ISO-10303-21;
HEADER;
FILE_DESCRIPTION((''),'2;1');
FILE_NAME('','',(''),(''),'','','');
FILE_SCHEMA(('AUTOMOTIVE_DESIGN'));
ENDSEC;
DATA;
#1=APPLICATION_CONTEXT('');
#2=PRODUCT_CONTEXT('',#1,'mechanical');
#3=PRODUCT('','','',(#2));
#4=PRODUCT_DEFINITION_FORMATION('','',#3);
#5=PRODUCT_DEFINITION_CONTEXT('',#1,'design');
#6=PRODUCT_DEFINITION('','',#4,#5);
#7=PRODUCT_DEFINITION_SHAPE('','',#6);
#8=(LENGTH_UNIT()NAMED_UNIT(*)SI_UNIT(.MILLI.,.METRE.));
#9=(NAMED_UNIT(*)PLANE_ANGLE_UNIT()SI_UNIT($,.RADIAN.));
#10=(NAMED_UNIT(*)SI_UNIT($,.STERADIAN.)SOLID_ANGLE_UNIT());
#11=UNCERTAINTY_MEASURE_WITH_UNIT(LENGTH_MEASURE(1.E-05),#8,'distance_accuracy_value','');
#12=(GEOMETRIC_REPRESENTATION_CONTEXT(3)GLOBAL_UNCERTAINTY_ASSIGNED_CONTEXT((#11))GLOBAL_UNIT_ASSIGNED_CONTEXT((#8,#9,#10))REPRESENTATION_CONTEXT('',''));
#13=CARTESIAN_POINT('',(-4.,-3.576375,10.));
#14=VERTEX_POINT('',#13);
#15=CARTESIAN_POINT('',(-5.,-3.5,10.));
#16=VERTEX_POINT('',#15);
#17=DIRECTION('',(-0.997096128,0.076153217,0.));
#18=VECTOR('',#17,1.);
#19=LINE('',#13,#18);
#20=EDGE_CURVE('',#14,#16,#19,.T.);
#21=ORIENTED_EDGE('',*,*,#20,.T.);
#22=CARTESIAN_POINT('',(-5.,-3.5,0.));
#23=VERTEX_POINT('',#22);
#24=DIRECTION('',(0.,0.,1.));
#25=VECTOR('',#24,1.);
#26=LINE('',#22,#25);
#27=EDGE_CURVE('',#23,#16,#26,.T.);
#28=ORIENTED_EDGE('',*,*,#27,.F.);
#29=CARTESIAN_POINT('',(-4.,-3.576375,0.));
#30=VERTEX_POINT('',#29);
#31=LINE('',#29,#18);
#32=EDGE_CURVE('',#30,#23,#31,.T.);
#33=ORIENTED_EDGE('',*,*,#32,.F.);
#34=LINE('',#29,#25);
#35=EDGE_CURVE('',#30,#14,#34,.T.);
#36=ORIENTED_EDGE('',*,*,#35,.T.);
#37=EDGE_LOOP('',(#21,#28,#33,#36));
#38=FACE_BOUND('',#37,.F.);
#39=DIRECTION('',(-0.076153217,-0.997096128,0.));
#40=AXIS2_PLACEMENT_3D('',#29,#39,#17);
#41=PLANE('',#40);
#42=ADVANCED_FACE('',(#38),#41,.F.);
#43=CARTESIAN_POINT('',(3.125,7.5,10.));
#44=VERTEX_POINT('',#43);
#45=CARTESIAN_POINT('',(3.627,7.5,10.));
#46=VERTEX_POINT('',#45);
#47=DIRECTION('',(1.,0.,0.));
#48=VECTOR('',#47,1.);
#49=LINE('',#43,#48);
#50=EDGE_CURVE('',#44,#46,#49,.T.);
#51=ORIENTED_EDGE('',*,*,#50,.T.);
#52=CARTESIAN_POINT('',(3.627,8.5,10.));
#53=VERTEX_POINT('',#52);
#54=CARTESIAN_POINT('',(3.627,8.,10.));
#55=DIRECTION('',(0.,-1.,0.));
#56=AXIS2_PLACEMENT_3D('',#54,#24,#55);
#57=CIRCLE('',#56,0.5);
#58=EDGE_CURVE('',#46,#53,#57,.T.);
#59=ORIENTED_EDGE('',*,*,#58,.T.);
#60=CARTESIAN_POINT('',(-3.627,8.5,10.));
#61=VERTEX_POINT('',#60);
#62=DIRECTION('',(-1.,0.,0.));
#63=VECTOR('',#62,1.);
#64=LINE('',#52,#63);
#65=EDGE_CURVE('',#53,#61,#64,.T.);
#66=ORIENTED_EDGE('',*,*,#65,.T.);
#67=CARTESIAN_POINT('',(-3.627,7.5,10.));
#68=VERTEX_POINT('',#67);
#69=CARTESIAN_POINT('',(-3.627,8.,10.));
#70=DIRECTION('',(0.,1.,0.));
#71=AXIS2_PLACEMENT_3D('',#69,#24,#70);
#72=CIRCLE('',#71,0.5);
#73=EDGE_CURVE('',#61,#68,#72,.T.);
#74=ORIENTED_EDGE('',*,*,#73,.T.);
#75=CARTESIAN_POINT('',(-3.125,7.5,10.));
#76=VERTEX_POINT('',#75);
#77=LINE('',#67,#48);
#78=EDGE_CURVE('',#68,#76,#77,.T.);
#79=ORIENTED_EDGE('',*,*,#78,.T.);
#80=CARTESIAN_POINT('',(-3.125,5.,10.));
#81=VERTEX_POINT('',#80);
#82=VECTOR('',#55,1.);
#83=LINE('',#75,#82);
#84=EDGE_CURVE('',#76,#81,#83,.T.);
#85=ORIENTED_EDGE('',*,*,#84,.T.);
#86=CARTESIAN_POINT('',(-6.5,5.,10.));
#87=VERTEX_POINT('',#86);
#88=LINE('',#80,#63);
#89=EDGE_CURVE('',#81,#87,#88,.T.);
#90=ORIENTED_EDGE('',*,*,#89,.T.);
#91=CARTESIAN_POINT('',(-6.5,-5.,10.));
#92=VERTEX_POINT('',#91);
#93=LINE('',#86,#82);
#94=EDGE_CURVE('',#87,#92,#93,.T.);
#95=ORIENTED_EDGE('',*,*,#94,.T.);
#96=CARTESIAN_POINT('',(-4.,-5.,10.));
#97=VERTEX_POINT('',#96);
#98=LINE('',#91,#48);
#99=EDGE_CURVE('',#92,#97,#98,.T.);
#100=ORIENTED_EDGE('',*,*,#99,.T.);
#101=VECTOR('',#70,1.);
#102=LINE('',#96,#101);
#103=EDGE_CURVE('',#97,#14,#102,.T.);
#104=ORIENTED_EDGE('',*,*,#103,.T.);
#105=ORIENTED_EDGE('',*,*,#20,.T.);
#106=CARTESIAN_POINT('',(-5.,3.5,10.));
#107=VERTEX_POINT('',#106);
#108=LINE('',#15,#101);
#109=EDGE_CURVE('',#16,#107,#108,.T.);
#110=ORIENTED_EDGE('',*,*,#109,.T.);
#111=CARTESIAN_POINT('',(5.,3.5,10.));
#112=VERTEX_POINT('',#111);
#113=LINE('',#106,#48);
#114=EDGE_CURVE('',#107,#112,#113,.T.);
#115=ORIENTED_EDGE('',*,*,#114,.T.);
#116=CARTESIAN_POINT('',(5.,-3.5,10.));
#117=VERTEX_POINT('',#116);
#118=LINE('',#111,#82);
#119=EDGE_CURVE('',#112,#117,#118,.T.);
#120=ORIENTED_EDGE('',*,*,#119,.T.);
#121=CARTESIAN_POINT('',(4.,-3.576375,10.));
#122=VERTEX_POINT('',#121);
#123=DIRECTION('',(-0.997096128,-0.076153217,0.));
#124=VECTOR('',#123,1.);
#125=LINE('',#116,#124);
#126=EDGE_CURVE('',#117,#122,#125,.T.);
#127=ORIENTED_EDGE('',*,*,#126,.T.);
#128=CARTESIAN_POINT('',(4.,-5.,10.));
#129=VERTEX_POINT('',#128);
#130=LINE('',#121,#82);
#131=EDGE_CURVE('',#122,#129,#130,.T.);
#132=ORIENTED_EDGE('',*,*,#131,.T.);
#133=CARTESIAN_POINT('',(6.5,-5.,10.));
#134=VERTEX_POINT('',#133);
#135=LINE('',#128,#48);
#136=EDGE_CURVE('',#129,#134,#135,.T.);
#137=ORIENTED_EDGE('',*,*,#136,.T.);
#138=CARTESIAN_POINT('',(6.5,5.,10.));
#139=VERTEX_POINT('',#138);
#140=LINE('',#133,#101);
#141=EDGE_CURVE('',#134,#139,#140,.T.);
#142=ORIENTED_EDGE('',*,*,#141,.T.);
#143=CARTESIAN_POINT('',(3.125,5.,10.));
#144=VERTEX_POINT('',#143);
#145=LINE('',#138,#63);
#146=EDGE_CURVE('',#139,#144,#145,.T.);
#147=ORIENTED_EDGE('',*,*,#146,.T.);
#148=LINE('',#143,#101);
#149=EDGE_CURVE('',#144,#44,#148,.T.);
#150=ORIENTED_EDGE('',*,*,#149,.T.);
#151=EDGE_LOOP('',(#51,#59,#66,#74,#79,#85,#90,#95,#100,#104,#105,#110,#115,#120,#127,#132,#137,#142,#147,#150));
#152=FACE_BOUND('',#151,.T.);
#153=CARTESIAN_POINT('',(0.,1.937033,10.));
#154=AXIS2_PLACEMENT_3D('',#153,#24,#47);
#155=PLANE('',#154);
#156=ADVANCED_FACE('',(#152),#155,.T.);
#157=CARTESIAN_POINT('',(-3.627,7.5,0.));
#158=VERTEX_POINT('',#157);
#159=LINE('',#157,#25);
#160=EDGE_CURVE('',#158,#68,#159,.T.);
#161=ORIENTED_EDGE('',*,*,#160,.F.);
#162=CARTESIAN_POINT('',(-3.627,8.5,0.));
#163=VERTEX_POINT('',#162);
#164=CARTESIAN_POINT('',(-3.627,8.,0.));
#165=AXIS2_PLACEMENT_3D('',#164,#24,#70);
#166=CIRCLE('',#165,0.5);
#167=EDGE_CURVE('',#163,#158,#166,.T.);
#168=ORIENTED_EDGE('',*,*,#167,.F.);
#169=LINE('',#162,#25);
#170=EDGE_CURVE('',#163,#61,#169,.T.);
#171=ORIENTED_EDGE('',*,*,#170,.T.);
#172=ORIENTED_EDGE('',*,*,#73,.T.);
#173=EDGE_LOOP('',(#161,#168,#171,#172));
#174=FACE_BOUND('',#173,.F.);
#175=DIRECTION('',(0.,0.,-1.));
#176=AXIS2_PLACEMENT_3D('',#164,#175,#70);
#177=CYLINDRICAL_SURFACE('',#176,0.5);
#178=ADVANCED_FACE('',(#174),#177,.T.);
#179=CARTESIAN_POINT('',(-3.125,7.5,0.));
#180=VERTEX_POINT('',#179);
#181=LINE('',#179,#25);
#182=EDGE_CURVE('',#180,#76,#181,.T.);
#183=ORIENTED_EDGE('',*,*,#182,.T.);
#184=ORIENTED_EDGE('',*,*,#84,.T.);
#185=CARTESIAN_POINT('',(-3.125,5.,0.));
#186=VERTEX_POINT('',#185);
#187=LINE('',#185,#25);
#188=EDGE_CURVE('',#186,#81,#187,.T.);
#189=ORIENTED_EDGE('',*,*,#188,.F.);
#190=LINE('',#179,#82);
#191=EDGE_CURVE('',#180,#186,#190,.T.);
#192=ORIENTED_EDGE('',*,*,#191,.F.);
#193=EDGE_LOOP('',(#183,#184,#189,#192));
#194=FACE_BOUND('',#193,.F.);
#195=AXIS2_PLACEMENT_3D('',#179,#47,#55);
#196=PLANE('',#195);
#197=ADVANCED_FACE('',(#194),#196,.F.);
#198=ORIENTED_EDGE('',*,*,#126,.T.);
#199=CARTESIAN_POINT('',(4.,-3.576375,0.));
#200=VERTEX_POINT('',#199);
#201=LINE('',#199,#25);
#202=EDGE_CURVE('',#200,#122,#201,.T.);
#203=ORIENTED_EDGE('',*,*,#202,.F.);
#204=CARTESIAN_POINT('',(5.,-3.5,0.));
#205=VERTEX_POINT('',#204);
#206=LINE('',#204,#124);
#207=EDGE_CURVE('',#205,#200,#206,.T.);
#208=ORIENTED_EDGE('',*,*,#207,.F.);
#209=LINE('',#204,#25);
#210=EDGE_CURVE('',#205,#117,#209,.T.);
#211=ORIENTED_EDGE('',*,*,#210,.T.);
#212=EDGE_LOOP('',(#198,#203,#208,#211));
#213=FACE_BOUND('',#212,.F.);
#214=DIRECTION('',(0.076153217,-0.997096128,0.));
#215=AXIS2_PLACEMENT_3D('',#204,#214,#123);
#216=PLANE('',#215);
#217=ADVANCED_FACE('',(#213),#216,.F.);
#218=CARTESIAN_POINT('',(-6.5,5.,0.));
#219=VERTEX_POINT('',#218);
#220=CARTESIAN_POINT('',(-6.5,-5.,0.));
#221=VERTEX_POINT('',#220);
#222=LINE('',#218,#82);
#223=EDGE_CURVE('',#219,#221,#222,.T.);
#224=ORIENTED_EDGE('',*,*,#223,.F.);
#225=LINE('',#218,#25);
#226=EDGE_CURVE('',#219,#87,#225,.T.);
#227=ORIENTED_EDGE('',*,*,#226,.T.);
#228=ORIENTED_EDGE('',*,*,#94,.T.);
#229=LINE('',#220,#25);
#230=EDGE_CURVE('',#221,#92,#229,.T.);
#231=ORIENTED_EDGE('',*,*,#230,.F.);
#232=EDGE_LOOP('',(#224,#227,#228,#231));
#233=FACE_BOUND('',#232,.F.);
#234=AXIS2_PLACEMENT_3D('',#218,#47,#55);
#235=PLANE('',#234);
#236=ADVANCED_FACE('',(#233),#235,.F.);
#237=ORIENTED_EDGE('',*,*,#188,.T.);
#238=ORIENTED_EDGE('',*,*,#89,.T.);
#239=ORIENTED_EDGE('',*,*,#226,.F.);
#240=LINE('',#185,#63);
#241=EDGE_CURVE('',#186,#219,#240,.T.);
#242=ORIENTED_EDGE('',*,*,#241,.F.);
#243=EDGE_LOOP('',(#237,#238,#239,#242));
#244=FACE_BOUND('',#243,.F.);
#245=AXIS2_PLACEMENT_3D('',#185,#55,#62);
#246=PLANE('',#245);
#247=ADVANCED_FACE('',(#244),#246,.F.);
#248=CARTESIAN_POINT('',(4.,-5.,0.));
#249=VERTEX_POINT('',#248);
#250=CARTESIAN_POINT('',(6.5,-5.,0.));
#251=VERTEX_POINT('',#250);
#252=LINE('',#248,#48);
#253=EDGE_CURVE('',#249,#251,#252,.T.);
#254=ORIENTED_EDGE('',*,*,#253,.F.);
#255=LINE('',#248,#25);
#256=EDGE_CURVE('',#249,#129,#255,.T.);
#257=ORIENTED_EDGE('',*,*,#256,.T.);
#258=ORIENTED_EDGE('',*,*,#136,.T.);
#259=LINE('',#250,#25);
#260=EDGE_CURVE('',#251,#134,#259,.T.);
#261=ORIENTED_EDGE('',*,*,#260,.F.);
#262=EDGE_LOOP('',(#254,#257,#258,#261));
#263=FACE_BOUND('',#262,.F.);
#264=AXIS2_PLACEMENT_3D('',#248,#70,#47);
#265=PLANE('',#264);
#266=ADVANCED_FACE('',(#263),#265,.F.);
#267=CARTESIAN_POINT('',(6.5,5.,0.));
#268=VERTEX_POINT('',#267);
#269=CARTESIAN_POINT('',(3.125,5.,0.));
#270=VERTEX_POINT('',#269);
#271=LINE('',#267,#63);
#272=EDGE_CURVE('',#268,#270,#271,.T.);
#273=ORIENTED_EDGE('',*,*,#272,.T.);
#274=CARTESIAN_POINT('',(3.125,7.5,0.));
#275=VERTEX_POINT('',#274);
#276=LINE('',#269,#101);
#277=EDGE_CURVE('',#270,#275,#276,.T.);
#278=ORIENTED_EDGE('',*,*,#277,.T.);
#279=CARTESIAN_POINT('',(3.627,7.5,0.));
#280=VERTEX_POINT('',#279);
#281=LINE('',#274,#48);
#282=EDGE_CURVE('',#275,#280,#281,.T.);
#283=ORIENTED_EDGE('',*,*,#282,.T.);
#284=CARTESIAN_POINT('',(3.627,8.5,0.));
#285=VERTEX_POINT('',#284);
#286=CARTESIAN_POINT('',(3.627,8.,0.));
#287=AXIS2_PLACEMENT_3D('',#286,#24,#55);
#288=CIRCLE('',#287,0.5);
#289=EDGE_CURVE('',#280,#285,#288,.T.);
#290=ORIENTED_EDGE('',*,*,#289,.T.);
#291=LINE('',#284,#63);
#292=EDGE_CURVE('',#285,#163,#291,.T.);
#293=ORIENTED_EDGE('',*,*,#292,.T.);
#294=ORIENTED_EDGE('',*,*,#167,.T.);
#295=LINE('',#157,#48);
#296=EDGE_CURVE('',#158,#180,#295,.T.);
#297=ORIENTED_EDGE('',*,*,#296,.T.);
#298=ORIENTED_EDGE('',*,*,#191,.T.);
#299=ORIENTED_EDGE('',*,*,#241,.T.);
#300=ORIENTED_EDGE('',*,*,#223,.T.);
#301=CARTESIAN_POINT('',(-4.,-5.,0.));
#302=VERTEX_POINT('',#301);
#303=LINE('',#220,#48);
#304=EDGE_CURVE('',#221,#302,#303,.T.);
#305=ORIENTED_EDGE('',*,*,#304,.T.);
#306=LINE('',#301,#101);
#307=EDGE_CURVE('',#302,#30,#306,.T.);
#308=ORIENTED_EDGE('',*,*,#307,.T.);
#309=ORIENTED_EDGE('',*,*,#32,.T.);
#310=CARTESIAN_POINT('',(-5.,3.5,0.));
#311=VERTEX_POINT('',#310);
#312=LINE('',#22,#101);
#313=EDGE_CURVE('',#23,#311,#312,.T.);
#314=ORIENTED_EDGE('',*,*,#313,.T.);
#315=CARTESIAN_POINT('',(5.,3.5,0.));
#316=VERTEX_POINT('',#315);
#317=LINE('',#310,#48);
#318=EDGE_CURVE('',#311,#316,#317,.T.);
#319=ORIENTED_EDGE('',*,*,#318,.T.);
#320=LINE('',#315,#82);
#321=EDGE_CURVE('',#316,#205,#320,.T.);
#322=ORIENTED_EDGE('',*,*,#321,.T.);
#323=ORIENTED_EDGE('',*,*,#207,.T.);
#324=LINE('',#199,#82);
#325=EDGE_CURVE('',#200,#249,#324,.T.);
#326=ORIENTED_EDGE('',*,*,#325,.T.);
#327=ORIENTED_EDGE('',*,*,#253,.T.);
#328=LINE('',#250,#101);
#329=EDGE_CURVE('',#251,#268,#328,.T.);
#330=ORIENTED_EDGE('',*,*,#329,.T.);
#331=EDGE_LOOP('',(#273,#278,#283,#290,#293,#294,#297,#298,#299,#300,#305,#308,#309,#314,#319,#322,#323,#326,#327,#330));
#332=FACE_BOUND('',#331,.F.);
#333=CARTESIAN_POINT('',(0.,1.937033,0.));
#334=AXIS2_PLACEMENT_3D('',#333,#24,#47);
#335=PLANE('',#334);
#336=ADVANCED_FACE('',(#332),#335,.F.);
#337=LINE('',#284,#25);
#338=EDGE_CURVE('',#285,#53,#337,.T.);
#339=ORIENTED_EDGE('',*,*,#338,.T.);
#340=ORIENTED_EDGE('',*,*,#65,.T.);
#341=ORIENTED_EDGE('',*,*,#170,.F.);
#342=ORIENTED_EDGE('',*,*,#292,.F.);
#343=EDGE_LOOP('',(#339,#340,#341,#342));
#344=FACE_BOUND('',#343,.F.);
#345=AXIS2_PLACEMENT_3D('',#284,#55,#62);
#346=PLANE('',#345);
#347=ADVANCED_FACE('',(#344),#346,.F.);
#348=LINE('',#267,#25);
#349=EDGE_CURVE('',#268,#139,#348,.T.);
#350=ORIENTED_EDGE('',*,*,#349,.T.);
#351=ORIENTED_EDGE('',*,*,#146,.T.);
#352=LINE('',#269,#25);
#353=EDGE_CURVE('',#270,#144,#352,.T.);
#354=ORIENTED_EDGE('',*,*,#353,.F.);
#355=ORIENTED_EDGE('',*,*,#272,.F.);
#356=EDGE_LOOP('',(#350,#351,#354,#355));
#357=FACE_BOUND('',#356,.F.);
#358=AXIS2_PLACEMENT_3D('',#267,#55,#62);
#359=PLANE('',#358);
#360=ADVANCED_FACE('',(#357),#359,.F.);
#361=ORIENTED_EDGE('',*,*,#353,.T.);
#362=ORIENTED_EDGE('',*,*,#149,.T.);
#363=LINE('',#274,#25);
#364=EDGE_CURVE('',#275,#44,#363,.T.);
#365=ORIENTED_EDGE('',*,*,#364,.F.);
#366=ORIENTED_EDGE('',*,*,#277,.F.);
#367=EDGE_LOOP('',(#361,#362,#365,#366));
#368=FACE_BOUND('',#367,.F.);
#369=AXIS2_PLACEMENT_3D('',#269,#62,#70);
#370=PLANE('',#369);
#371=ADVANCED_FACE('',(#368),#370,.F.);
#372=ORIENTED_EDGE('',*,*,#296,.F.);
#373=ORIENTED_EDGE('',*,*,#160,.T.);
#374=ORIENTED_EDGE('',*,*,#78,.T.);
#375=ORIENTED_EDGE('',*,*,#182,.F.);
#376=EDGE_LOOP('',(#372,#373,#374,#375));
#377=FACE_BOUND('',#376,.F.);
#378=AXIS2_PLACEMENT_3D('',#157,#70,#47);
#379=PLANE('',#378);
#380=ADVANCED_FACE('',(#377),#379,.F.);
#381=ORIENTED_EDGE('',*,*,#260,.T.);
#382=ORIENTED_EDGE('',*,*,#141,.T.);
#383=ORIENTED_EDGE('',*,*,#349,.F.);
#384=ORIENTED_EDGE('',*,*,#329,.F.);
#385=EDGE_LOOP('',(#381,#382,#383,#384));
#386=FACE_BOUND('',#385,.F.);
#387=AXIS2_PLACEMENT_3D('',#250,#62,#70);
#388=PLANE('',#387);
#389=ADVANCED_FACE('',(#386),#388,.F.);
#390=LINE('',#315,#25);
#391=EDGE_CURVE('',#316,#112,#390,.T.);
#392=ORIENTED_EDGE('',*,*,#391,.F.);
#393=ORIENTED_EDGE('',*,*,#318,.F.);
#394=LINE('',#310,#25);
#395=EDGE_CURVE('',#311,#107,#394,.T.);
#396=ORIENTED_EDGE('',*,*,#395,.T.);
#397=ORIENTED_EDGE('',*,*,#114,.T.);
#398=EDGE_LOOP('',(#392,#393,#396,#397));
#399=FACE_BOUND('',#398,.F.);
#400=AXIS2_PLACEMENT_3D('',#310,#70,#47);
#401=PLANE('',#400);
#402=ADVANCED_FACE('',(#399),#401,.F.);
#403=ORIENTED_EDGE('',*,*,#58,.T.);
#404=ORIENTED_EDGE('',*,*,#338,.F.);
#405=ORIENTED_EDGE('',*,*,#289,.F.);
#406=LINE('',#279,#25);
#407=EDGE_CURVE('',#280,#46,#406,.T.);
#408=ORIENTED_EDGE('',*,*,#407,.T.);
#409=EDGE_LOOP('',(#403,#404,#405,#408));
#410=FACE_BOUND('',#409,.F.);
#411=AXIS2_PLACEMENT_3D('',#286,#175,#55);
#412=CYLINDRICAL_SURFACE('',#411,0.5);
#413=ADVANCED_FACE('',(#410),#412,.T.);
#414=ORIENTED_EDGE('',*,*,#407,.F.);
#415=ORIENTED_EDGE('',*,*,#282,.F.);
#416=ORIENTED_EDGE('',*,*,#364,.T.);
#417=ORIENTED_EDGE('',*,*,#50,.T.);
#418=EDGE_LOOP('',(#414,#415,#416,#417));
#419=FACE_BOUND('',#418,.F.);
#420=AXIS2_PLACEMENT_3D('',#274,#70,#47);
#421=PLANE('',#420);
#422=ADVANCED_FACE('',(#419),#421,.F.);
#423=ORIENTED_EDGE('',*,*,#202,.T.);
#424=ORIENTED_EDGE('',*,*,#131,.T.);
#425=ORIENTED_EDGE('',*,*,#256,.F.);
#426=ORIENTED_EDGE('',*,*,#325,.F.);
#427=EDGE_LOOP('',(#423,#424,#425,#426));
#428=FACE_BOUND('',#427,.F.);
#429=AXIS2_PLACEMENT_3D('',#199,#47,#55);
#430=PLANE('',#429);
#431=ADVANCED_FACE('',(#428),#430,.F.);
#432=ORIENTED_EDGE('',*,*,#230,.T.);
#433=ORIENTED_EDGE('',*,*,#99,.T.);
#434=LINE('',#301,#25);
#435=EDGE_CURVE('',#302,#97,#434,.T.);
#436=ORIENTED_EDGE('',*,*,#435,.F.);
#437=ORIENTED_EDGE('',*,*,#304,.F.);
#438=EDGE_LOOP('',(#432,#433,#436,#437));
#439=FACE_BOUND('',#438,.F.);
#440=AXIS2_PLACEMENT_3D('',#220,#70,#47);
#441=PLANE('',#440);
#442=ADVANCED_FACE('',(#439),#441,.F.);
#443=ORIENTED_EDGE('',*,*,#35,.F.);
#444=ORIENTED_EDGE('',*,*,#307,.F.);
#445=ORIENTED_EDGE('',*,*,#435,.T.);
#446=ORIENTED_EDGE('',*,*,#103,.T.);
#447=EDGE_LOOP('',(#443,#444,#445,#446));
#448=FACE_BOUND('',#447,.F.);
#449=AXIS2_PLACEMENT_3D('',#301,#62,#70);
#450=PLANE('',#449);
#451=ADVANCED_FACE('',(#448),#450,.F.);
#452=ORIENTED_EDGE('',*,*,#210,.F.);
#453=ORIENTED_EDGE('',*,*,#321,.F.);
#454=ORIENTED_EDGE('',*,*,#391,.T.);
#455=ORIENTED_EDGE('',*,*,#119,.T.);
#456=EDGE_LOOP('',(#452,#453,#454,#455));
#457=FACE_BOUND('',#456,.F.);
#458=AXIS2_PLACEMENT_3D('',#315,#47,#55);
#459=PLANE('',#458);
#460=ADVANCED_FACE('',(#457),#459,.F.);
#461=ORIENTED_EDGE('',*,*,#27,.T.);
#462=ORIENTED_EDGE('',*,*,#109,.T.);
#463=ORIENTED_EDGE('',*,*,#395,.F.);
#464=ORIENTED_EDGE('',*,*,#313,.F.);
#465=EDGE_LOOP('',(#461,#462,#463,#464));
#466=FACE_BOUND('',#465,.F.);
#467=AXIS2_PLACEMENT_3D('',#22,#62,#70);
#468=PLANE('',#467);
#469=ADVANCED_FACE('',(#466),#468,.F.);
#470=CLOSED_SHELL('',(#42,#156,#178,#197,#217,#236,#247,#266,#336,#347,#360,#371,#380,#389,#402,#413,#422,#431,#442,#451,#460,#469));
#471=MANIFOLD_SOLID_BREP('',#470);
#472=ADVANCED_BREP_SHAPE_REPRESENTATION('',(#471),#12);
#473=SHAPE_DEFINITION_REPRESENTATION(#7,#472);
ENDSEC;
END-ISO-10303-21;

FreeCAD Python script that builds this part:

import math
import FreeCAD as App
import Part
import Sketcher

V = App.Vector

doc = App.newDocument("Part")
body = doc.addObject("PartDesign::Body", "Body")

sketch1 = body.newObject("Sketcher::SketchObject", "Sketch")
sketch1.AttachmentSupport = (doc.getObject("XY_Plane"), [""])
sketch1.MapMode = "FlatFace"
sketch1.addGeometry([
    Part.LineSegment(V(-6.5, -5, 0), V(-4, -5, 0)),
    Part.LineSegment(V(-4, -5, 0), V(-4, -3.6, 0)),
    Part.LineSegment(V(-4, -3.6, 0), V(-5, -3.5, 0)),
    Part.LineSegment(V(-5, -3.5, 0), V(-5, 3.5, 0)),
    Part.LineSegment(V(-5, 3.5, 0), V(5, 3.5, 0)),
    Part.LineSegment(V(5, 3.5, 0), V(5, -3.5, 0)),
    Part.LineSegment(V(5, -3.5, 0), V(4, -3.6, 0)),
    Part.LineSegment(V(4, -3.6, 0), V(4, -5, 0)),
    Part.LineSegment(V(4, -5, 0), V(6.5, -5, 0)),
    Part.LineSegment(V(6.5, -5, 0), V(6.5, 5, 0)),
    Part.LineSegment(V(6.5, 5, 0), V(3.1, 5, 0)),
    Part.LineSegment(V(3.1, 5, 0), V(3.1, 7.5, 0)),
    Part.LineSegment(V(3.1, 7.5, 0), V(3.6, 7.5, 0)),
    Part.ArcOfCircle(Part.Circle(V(3.6, 8, 0), V(0, 0, 1), 0.5), math.radians(-90), math.radians(90)),
    Part.LineSegment(V(3.6, 8.5, 0), V(-3.6, 8.5, 0)),
    Part.ArcOfCircle(Part.Circle(V(-3.6, 8, 0), V(0, 0, 1), 0.5), math.radians(90), math.radians(270)),
    Part.LineSegment(V(-3.6, 7.5, 0), V(-3.1, 7.5, 0)),
    Part.LineSegment(V(-3.1, 7.5, 0), V(-3.1, 5, 0)),
    Part.LineSegment(V(-3.1, 5, 0), V(-6.5, 5, 0)),
    Part.LineSegment(V(-6.5, 5, 0), V(-6.5, -5, 0)),
], False)
sketch1.addConstraint([
    Sketcher.Constraint("Coincident", 0, 2, 1, 1),
    Sketcher.Constraint("Coincident", 1, 2, 2, 1),
    Sketcher.Constraint("Coincident", 2, 2, 3, 1),
    Sketcher.Constraint("Coincident", 3, 2, 4, 1),
    Sketcher.Constraint("Coincident", 4, 2, 5, 1),
    Sketcher.Constraint("Coincident", 5, 2, 6, 1),
    Sketcher.Constraint("Coincident", 6, 2, 7, 1),
    Sketcher.Constraint("Coincident", 7, 2, 8, 1),
    Sketcher.Constraint("Coincident", 8, 2, 9, 1),
    Sketcher.Constraint("Coincident", 9, 2, 10, 1),
    Sketcher.Constraint("Coincident", 10, 2, 11, 1),
    Sketcher.Constraint("Coincident", 11, 2, 12, 1),
    Sketcher.Constraint("Tangent", 12, 2, 13, 1),
    Sketcher.Constraint("Tangent", 13, 2, 14, 1),
    Sketcher.Constraint("Tangent", 14, 2, 15, 1),
    Sketcher.Constraint("Tangent", 15, 2, 16, 1),
    Sketcher.Constraint("Coincident", 16, 2, 17, 1),
    Sketcher.Constraint("Coincident", 17, 2, 18, 1),
    Sketcher.Constraint("Coincident", 18, 2, 19, 1),
    Sketcher.Constraint("Coincident", 19, 2, 0, 1),
    Sketcher.Constraint("Horizontal", 0),
    Sketcher.Constraint("Vertical", 1),
    Sketcher.Constraint("Vertical", 3),
    Sketcher.Constraint("Horizontal", 4),
    Sketcher.Constraint("Vertical", 5),
    Sketcher.Constraint("Vertical", 7),
    Sketcher.Constraint("Horizontal", 8),
    Sketcher.Constraint("Vertical", 9),
    Sketcher.Constraint("Horizontal", 10),
    Sketcher.Constraint("Vertical", 11),
    Sketcher.Constraint("Horizontal", 12),
    Sketcher.Constraint("Horizontal", 14),
    Sketcher.Constraint("Horizontal", 16),
    Sketcher.Constraint("Vertical", 17),
    Sketcher.Constraint("Horizontal", 18),
    Sketcher.Constraint("Vertical", 19),
    Sketcher.Constraint("Equal", 13, 15),
    Sketcher.Constraint("Symmetric", 2, 2, 4, 2, -1, 1),
    Sketcher.Constraint("Symmetric", 8, 2, 18, 2, -1, 1),
    Sketcher.Constraint("Symmetric", 1, 2, 6, 2, -2),
    Sketcher.Constraint("Symmetric", 10, 2, 17, 2, -2),
    Sketcher.Constraint("Horizontal", 2, 2, 5, 2),
    Sketcher.Constraint("Horizontal", 0, 2, 7, 2),
    Sketcher.Constraint("Equal", 12, 16),
    Sketcher.Constraint("Equal", 4, 9),
    Sketcher.Constraint("Equal", 8, 11),
    Sketcher.Constraint("Radius", 13, 0.5),
    Sketcher.Constraint("DistanceX", 4, 1, 4, 2, 10.0),
    Sketcher.Constraint("DistanceY", 3, 1, 3, 2, 7.0),
    Sketcher.Constraint("DistanceX", 0, 1, 0, 2, 2.5),
    Sketcher.Constraint("DistanceX", 0, 2, -1, 1, 4.0),
    Sketcher.Constraint("DistanceX", 10, 2, 10, 1, 3.375),
    Sketcher.Constraint("DistanceX", 12, 1, 12, 2, 0.502),
    Sketcher.Constraint("DistanceY", 1, 1, 1, 2, 1.423625),
])
pad1 = body.newObject("PartDesign::Pad", "Pad")
pad1.Profile = sketch1
pad1.Length = 10

doc.recompute()
